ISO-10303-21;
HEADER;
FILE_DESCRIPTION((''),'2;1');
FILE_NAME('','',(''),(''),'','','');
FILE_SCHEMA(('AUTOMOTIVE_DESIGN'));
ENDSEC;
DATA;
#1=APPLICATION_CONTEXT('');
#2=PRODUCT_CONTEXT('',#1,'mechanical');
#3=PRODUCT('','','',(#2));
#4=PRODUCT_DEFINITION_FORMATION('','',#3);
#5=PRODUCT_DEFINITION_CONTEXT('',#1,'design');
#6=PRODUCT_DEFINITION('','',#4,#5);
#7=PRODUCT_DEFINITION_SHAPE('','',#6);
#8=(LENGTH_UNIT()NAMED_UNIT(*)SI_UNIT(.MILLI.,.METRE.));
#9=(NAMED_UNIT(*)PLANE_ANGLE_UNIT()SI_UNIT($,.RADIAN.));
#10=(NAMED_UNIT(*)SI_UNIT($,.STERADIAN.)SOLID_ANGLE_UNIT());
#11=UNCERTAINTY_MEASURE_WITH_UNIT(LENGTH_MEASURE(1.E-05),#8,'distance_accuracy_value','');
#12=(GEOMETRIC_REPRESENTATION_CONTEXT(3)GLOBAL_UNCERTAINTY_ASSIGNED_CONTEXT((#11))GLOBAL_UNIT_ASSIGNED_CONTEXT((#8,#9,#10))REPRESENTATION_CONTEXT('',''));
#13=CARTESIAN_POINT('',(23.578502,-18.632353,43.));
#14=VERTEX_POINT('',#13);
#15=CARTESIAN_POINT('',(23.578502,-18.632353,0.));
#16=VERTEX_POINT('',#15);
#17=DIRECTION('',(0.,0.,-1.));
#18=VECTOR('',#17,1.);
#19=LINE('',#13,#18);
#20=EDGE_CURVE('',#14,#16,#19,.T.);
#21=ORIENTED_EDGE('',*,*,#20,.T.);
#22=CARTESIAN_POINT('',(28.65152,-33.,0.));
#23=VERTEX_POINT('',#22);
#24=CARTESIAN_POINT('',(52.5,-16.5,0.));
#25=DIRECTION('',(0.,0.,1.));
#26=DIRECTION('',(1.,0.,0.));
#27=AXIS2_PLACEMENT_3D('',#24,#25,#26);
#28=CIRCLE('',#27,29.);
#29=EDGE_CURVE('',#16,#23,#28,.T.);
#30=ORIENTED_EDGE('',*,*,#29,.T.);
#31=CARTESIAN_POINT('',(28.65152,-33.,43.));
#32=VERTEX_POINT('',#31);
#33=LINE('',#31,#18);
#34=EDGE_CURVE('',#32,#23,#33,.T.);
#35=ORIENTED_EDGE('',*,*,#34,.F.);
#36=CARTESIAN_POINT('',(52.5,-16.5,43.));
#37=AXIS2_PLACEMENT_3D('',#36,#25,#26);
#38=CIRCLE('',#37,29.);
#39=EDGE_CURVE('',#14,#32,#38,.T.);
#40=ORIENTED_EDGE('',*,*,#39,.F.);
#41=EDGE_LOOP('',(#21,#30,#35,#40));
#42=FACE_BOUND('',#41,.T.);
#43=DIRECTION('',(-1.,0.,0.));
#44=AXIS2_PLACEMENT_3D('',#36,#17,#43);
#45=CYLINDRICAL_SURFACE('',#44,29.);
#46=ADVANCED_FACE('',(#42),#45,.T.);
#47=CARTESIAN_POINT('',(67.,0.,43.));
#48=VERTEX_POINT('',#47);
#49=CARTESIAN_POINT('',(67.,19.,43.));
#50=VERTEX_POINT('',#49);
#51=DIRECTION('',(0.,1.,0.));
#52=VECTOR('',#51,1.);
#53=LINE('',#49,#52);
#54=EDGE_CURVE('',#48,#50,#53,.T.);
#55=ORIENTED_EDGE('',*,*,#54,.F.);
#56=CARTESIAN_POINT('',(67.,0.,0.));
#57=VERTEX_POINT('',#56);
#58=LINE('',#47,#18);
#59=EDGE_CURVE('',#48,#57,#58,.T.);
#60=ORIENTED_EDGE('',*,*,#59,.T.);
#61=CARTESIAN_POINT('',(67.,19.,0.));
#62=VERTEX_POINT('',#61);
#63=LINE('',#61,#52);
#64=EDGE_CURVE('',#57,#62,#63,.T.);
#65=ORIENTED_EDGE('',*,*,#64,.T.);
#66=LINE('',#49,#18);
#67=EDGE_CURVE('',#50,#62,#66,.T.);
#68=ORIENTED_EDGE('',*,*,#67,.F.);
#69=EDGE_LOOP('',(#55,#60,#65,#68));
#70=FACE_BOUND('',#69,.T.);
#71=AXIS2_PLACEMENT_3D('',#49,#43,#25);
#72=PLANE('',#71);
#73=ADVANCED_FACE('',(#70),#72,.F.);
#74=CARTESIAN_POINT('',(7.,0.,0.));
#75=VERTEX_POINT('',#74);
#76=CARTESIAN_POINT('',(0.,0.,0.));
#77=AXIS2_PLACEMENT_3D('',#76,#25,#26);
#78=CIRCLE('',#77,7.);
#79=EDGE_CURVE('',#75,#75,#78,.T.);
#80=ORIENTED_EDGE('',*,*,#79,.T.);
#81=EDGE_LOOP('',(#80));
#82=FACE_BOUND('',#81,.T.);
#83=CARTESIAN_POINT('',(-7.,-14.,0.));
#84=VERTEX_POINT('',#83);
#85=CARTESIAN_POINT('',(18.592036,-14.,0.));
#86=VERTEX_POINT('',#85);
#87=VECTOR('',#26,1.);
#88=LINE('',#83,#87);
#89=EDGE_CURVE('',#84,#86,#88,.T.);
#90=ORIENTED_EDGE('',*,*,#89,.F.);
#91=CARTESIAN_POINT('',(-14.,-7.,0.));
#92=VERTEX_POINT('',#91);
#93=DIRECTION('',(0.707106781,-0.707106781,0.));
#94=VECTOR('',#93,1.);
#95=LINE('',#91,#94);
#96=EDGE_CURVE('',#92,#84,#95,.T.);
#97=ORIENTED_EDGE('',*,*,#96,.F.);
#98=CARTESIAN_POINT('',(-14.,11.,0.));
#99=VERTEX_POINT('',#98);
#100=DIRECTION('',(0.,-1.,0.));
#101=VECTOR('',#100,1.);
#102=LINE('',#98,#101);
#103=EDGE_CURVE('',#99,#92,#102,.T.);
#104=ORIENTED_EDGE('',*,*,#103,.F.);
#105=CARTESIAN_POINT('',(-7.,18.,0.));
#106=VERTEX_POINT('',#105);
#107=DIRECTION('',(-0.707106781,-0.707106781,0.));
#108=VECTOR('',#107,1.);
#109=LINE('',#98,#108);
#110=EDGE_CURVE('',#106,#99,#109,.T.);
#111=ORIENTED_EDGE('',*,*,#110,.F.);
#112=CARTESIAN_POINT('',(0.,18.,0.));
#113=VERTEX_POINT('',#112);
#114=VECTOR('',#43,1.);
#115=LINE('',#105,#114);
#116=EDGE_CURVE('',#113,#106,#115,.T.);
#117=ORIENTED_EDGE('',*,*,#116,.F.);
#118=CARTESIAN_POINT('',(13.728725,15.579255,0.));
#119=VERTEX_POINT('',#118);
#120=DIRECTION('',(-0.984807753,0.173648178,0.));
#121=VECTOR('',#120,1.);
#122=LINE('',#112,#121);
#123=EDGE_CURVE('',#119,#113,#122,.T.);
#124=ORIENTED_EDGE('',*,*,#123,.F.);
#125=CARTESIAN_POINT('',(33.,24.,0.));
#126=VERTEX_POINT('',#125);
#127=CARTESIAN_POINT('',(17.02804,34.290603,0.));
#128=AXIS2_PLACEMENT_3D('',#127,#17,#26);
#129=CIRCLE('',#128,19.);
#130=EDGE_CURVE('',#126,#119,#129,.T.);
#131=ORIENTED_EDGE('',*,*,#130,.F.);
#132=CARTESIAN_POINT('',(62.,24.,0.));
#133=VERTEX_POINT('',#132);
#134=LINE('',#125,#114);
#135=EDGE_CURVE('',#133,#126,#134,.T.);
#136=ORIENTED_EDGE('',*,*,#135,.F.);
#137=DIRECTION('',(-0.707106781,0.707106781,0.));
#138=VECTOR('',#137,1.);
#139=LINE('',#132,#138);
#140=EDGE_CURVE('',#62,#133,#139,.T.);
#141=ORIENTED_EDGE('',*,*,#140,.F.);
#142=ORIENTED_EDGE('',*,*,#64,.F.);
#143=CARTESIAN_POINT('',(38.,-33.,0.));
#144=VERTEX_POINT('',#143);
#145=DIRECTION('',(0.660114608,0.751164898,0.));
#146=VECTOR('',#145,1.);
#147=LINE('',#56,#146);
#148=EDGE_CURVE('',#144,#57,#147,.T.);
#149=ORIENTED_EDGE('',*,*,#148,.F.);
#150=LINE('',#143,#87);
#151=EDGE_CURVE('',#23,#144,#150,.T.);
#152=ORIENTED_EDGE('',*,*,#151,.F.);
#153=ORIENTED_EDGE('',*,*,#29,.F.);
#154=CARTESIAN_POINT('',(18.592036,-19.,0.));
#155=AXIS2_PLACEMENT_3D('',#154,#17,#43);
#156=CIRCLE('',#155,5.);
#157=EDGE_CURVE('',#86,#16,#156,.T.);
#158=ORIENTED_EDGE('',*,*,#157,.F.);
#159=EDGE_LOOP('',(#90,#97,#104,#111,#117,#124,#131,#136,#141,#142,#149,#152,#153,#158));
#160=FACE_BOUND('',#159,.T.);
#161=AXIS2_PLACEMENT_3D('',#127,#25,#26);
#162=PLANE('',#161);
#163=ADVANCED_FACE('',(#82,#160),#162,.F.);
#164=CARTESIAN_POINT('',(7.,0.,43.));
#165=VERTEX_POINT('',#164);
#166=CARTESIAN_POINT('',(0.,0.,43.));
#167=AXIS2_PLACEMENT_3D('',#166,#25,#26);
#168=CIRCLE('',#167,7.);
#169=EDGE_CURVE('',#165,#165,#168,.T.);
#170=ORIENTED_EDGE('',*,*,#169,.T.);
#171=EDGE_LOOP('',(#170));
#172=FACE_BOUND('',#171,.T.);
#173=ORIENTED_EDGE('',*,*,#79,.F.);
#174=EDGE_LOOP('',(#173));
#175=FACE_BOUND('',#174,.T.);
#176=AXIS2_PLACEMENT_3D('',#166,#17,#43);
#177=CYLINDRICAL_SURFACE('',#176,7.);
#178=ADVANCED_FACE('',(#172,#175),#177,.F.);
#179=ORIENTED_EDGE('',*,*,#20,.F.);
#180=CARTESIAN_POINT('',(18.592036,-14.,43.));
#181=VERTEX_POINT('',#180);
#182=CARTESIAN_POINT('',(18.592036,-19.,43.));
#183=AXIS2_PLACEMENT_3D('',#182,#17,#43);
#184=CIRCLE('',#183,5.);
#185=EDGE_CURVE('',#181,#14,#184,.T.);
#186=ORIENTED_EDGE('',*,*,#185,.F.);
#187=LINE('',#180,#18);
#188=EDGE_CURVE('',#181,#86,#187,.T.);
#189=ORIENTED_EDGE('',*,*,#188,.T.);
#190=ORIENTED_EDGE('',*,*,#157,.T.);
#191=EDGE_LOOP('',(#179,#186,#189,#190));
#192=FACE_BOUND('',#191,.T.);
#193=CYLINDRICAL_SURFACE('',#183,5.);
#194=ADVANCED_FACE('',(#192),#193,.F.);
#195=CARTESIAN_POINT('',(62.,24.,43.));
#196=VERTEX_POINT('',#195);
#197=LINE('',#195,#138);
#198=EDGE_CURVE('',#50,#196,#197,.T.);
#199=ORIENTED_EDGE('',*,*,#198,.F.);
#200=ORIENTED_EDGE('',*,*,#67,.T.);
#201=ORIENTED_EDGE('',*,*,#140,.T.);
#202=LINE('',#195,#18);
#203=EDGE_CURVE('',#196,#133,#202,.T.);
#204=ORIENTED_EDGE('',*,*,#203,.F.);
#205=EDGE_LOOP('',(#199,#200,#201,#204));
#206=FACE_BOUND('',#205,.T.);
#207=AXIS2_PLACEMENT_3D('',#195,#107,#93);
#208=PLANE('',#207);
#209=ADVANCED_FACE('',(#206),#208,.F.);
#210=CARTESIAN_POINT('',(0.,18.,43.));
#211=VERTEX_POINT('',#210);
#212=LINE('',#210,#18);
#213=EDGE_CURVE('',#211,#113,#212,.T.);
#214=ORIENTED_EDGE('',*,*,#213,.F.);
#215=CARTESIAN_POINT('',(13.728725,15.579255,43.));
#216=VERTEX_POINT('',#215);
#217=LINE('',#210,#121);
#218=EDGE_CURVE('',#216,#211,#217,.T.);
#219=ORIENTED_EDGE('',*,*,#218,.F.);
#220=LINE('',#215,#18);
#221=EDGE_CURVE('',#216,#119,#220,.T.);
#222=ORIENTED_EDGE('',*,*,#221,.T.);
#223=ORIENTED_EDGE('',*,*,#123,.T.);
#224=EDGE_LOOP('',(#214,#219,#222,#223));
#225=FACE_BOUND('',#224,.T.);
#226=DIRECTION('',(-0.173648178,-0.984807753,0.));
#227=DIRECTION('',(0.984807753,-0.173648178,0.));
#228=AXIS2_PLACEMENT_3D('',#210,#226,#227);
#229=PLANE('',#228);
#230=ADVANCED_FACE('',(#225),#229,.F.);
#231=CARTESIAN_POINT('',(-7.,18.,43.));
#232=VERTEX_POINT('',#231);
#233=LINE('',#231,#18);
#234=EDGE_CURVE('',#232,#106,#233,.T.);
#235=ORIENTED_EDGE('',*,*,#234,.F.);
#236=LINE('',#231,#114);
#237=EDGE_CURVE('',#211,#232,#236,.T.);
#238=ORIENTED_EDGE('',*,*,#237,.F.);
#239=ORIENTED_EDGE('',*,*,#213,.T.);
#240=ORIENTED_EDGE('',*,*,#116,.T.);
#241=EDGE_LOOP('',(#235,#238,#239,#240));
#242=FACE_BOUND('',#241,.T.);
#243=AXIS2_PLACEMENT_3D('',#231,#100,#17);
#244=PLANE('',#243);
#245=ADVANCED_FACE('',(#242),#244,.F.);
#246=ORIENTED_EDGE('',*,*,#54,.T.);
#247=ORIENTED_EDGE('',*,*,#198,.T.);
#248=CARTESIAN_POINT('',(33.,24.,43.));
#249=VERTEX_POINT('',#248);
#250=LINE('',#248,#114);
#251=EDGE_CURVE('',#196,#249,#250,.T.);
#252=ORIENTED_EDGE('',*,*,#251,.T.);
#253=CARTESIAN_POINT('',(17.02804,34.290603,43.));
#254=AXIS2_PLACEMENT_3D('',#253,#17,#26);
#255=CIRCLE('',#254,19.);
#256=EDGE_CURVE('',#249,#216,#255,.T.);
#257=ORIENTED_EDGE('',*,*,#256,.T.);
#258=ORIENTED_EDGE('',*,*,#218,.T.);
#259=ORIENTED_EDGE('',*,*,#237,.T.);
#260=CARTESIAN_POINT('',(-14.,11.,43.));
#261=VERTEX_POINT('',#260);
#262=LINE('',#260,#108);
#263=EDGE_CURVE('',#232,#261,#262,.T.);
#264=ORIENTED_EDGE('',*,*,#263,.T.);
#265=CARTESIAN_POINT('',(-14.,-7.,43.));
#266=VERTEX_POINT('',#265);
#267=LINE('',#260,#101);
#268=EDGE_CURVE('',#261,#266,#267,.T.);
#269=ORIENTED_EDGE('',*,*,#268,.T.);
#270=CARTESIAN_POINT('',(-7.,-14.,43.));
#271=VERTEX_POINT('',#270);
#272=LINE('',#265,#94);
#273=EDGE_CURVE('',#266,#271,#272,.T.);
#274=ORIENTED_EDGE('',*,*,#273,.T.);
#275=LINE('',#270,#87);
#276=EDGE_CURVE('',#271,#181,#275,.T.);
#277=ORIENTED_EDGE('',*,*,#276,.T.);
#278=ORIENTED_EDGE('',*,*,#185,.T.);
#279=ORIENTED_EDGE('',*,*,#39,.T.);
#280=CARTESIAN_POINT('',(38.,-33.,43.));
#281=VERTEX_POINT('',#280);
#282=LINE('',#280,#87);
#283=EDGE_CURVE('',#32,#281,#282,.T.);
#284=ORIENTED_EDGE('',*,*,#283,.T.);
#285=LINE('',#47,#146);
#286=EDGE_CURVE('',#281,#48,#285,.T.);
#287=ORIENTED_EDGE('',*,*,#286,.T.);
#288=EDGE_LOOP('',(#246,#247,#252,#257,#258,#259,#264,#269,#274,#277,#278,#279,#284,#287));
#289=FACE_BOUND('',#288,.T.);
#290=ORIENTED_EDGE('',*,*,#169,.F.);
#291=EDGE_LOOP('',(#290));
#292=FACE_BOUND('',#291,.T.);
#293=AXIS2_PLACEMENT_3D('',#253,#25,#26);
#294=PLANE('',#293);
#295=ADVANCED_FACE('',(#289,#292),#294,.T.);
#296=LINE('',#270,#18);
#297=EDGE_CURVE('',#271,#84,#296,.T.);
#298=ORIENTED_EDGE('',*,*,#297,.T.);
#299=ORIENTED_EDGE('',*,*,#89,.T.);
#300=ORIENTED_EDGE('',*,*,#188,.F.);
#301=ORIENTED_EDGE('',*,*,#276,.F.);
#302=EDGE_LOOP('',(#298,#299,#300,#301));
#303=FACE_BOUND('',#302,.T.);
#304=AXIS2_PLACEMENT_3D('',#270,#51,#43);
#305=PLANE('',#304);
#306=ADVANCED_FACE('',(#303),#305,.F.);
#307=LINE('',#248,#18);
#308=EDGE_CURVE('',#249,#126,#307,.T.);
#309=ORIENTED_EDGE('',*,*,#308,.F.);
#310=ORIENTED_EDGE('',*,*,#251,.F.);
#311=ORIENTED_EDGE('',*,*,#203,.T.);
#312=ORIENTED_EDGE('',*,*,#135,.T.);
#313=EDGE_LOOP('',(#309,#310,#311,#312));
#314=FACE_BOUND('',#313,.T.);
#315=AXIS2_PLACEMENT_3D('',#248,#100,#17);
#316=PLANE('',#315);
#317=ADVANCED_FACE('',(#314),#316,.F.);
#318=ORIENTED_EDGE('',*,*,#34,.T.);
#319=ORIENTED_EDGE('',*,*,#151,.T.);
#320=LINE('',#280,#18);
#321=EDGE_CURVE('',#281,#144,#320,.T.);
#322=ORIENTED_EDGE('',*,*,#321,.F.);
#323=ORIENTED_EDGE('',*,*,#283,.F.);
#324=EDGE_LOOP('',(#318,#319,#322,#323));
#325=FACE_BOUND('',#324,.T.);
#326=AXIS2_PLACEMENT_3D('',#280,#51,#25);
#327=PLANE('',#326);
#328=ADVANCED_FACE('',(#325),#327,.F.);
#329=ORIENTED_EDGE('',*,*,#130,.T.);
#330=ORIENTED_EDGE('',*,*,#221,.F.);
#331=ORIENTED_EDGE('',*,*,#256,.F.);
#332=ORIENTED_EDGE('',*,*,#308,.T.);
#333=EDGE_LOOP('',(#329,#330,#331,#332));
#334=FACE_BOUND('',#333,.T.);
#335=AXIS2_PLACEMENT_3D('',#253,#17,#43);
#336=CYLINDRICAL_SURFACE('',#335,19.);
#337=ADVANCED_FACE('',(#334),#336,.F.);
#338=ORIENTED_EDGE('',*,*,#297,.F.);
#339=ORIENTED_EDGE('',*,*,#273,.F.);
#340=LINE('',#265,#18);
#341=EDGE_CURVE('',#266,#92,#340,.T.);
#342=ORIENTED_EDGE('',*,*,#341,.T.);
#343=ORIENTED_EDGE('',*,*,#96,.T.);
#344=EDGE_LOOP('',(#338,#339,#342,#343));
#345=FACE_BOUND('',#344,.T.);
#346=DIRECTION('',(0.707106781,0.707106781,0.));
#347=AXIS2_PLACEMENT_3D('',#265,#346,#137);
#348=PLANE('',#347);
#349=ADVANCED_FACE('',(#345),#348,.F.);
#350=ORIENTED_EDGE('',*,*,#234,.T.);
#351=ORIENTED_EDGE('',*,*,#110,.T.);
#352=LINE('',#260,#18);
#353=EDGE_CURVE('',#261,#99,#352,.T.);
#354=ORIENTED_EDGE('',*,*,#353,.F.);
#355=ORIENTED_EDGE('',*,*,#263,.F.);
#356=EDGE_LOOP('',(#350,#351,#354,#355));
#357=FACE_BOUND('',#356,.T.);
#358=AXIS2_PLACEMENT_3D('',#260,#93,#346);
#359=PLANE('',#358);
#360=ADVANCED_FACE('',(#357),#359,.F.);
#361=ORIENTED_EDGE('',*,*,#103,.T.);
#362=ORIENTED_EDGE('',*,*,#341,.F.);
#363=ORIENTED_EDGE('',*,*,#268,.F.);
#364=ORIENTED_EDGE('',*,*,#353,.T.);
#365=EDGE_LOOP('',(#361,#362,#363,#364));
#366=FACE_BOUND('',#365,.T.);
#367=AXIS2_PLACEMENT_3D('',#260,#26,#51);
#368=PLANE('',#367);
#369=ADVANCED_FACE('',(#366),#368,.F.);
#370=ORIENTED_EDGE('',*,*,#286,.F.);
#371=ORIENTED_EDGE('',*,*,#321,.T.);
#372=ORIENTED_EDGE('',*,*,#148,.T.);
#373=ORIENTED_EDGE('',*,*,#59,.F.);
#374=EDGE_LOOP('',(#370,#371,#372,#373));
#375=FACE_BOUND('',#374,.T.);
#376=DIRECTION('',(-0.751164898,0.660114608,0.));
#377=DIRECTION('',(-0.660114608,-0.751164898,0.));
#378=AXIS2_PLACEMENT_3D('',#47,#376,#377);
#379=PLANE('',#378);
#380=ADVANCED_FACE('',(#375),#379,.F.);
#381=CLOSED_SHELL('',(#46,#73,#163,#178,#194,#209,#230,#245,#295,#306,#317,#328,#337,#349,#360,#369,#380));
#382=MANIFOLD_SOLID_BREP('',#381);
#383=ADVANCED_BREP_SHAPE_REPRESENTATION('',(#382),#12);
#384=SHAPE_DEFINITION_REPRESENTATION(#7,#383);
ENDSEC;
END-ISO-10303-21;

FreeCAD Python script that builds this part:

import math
import FreeCAD as App
import Part
import Sketcher
from FreeCAD import Vector
Q = App.Units.Quantity

doc = App.newDocument("Part")
body = doc.addObject("PartDesign::Body", "Body")

sketch1 = body.newObject("Sketcher::SketchObject", "Sketch")
sketch1.AttachmentSupport = (doc.getObject("XY_Plane"), [""])
sketch1.MapMode = "FlatFace"
sketch1.addGeometry(Part.LineSegment(Vector(-14, 11, 0), Vector(-14, -7, 0)), False)
sketch1.addGeometry(Part.LineSegment(Vector(-14, -7, 0), Vector(-7, -14, 0)), False)
sketch1.addGeometry(Part.LineSegment(Vector(-7, -14, 0), Vector(19, -14, 0)), False)
sketch1.addGeometry(Part.ArcOfCircle(Part.Circle(Vector(19, -19, 0), Vector(0, 0, 1), 5), math.radians(4), math.radians(90)), False)
sketch1.addGeometry(Part.ArcOfCircle(Part.Circle(Vector(52, -17, 0), Vector(0, 0, 1), 29), math.radians(-176), math.radians(-145)), False)
sketch1.addGeometry(Part.LineSegment(Vector(29, -33, 0), Vector(38, -33, 0)), False)
sketch1.addGeometry(Part.LineSegment(Vector(38, -33, 0), Vector(67, 0, 0)), False)
sketch1.addGeometry(Part.LineSegment(Vector(67, 0, 0), Vector(67, 19, 0)), False)
sketch1.addGeometry(Part.LineSegment(Vector(67, 19, 0), Vector(62, 24, 0)), False)
sketch1.addGeometry(Part.LineSegment(Vector(62, 24, 0), Vector(33, 24, 0)), False)
sketch1.addGeometry(Part.ArcOfCircle(Part.Circle(Vector(17, 34, 0), Vector(0, 0, 1), 19), math.radians(-100), math.radians(-33)), False)
sketch1.addGeometry(Part.LineSegment(Vector(14, 16, 0), Vector(0, 18, 0)), False)
sketch1.addGeometry(Part.LineSegment(Vector(0, 18, 0), Vector(-7, 18, 0)), False)
sketch1.addGeometry(Part.LineSegment(Vector(-7, 18, 0), Vector(-14, 11, 0)), False)
sketch1.addGeometry(Part.Circle(Vector(0, 0, 0), Vector(0, 0, 1), 7), False)
sketch1.addConstraint(Sketcher.Constraint("Coincident", 0, 2, 1, 1))
sketch1.addConstraint(Sketcher.Constraint("Coincident", 1, 2, 2, 1))
sketch1.addConstraint(Sketcher.Constraint("Tangent", 2, 2, 3, 2))
sketch1.addConstraint(Sketcher.Constraint("Tangent", 3, 1, 4, 1))
sketch1.addConstraint(Sketcher.Constraint("Coincident", 4, 2, 5, 1))
sketch1.addConstraint(Sketcher.Constraint("Coincident", 5, 2, 6, 1))
sketch1.addConstraint(Sketcher.Constraint("Coincident", 6, 2, 7, 1))
sketch1.addConstraint(Sketcher.Constraint("Coincident", 7, 2, 8, 1))
sketch1.addConstraint(Sketcher.Constraint("Coincident", 8, 2, 9, 1))
sketch1.addConstraint(Sketcher.Constraint("Coincident", 9, 2, 10, 2))
sketch1.addConstraint(Sketcher.Constraint("Tangent", 10, 1, 11, 1))
sketch1.addConstraint(Sketcher.Constraint("Coincident", 11, 2, 12, 1))
sketch1.addConstraint(Sketcher.Constraint("Coincident", 12, 2, 13, 1))
sketch1.addConstraint(Sketcher.Constraint("Coincident", 13, 2, 0, 1))
sketch1.addConstraint(Sketcher.Constraint("Vertical", 0))
sketch1.addConstraint(Sketcher.Constraint("Horizontal", 2))
sketch1.addConstraint(Sketcher.Constraint("Horizontal", 5))
sketch1.addConstraint(Sketcher.Constraint("Vertical", 7))
sketch1.addConstraint(Sketcher.Constraint("Horizontal", 9))
sketch1.addConstraint(Sketcher.Constraint("Horizontal", 12))
sketch1.addConstraint(Sketcher.Constraint("Coincident", 14, 3, -1, 1))
sketch1.addConstraint(Sketcher.Constraint("PointOnObject", 6, 2, -1))
sketch1.addConstraint(Sketcher.Constraint("PointOnObject", 11, 2, -2))
sketch1.addConstraint(Sketcher.Constraint("Parallel", 1, 8))
sketch1.addConstraint(Sketcher.Constraint("Perpendicular", 8, 13))
sketch1.addConstraint(Sketcher.Constraint("Vertical", 1, 2, 12, 2))
sketch1.addConstraint(Sketcher.Constraint("Equal", 1, 13))
sketch1.addConstraint(Sketcher.Constraint("Diameter", 14, Q("14 mm")))
sketch1.addConstraint(Sketcher.Constraint("Radius", 3, Q("5 mm")))
sketch1.addConstraint(Sketcher.Constraint("Radius", 4, Q("29 mm")))
sketch1.addConstraint(Sketcher.Constraint("Radius", 10, Q("19 mm")))
sketch1.addConstraint(Sketcher.Constraint("DistanceX", 9, 2, 9, 1, Q("29 mm")))
sketch1.addConstraint(Sketcher.Constraint("DistanceX", 12, 2, 12, 1, Q("7 mm")))
sketch1.addConstraint(Sketcher.Constraint("DistanceY", 0, 2, 0, 1, Q("18 mm")))
sketch1.addConstraint(Sketcher.Constraint("DistanceY", 7, 1, 7, 2, Q("19 mm")))
sketch1.addConstraint(Sketcher.Constraint("Angle", 11, Q("170 deg")))
sketch1.addConstraint(Sketcher.Constraint("DistanceY", 3, 3, -1, 1, Q("19 mm")))
sketch1.addConstraint(Sketcher.Constraint("DistanceX", 0, 2, -1, 1, Q("14 mm")))
sketch1.addConstraint(Sketcher.Constraint("DistanceY", 4, 2, -1, 1, Q("33 mm")))
sketch1.addConstraint(Sketcher.Constraint("DistanceX", -1, 1, 5, 2, Q("38 mm")))
sketch1.addConstraint(Sketcher.Constraint("DistanceX", -1, 1, 6, 2, Q("67 mm")))
sketch1.addConstraint(Sketcher.Constraint("DistanceX", -1, 1, 8, 2, Q("62 mm")))
sketch1.addConstraint(Sketcher.Constraint("DistanceX", -1, 1, 4, 3, Q("52.5 mm")))
sketch1.addConstraint(Sketcher.Constraint("DistanceY", 4, 3, -1, 1, Q("16.5 mm")))
pad1 = body.newObject("PartDesign::Pad", "Pad")
pad1.Profile = sketch1
pad1.Length = 43

doc.recompute()
